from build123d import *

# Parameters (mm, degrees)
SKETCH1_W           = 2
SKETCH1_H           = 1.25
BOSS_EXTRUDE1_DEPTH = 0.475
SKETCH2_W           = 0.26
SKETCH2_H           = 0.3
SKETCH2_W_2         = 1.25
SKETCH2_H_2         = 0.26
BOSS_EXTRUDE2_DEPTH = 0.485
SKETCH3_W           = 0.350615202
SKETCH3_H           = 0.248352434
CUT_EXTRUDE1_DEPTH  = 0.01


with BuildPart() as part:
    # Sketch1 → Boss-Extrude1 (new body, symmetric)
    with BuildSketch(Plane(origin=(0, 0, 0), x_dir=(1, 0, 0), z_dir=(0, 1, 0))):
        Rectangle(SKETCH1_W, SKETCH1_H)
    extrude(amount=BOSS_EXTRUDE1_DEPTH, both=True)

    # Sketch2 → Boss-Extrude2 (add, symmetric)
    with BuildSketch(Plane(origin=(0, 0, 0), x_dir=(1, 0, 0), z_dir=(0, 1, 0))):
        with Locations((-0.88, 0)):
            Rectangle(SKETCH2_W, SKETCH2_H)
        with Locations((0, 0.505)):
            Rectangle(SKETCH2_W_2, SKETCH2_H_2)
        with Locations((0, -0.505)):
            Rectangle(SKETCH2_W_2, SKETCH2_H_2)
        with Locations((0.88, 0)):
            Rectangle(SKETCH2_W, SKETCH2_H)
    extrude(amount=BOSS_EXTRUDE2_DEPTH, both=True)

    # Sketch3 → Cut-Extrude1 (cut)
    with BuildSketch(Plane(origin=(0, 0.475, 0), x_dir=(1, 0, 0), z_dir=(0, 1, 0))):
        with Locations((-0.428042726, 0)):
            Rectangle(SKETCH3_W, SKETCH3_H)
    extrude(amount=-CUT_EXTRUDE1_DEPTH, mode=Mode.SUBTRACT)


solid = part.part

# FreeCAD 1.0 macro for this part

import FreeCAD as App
import Part
import Sketcher

V = App.Vector
Q = App.Units.Quantity


def add_polygon(sketch, points):
    """Adds a closed chain of lines whose ends are joined by coincident constraints."""
    first, n = sketch.GeometryCount, len(points)
    for a, b in zip(points, points[1:] + points[:1]):
        sketch.addGeometry(Part.LineSegment(App.Vector(*a, 0), App.Vector(*b, 0)), False)
    for i in range(n):
        sketch.addConstraint(Sketcher.Constraint("Coincident", first + i, 2, first + (i + 1) % n, 1))

doc = App.newDocument("Part")
body = doc.addObject("PartDesign::Body", "Body")

# Sketch on XZ plane
sketch1 = body.newObject("Sketcher::SketchObject", "Sketch")
sketch1.AttachmentSupport = (doc.getObject("XZ_Plane"), [""])
sketch1.MapMode = "FlatFace"
add_polygon(sketch1, [(-1, -0.6), (-1, 0.6), (1, 0.6), (1, -0.6)])  # lines 0-3
sketch1.addConstraint(Sketcher.Constraint("Vertical", 0))
sketch1.addConstraint(Sketcher.Constraint("Horizontal", 1))
sketch1.addConstraint(Sketcher.Constraint("Vertical", 2))
sketch1.addConstraint(Sketcher.Constraint("Horizontal", 3))
sketch1.addConstraint(Sketcher.Constraint("Symmetric", 0, 2, 2, 2, -1, 1))
sketch1.addConstraint(Sketcher.Constraint("DistanceX", 1, 1, 1, 2, Q("2 mm")))
sketch1.addConstraint(Sketcher.Constraint("DistanceY", 0, 1, 0, 2, Q("1.25 mm")))
pad1 = body.newObject("PartDesign::Pad", "Pad")
pad1.Profile = sketch1
pad1.Length = 0.95
pad1.Midplane = True

# Sketch on XZ plane
sketch2 = body.newObject("Sketcher::SketchObject", "Sketch001")
sketch2.AttachmentSupport = (doc.getObject("XZ_Plane"), [""])
sketch2.MapMode = "FlatFace"
add_polygon(sketch2, [(-1.01, -0.15), (-1.01, 0.15), (-0.75, 0.15), (-0.75, -0.15)])  # lines 0-3
add_polygon(sketch2, [(-0.62, -0.64), (-0.62, -0.38), (0.62, -0.38), (0.62, -0.64)])  # lines 4-7
add_polygon(sketch2, [(-0.62, 0.38), (-0.62, 0.64), (0.62, 0.64), (0.62, 0.38)])  # lines 8-11
add_polygon(sketch2, [(0.75, -0.15), (0.75, 0.15), (1.01, 0.15), (1.01, -0.15)])  # lines 12-15
sketch2.addConstraint(Sketcher.Constraint("Vertical", 0))
sketch2.addConstraint(Sketcher.Constraint("Horizontal", 1))
sketch2.addConstraint(Sketcher.Constraint("Vertical", 2))
sketch2.addConstraint(Sketcher.Constraint("Horizontal", 3))
sketch2.addConstraint(Sketcher.Constraint("Vertical", 4))
sketch2.addConstraint(Sketcher.Constraint("Horizontal", 5))
sketch2.addConstraint(Sketcher.Constraint("Vertical", 6))
sketch2.addConstraint(Sketcher.Constraint("Horizontal", 7))
sketch2.addConstraint(Sketcher.Constraint("Vertical", 8))
sketch2.addConstraint(Sketcher.Constraint("Horizontal", 9))
sketch2.addConstraint(Sketcher.Constraint("Vertical", 10))
sketch2.addConstraint(Sketcher.Constraint("Horizontal", 11))
sketch2.addConstraint(Sketcher.Constraint("Vertical", 12))
sketch2.addConstraint(Sketcher.Constraint("Horizontal", 13))
sketch2.addConstraint(Sketcher.Constraint("Vertical", 14))
sketch2.addConstraint(Sketcher.Constraint("Horizontal", 15))
sketch2.addConstraint(Sketcher.Constraint("Symmetric", 6, 2, 8, 2, -1, 1))
sketch2.addConstraint(Sketcher.Constraint("Symmetric", 4, 2, 10, 2, -1, 1))
sketch2.addConstraint(Sketcher.Constraint("Symmetric", 2, 2, 12, 2, -1, 1))
sketch2.addConstraint(Sketcher.Constraint("Symmetric", 0, 2, 14, 2, -1, 1))
sketch2.addConstraint(Sketcher.Constraint("Horizontal", 1, 2, 12, 2))
sketch2.addConstraint(Sketcher.Constraint("Vertical", 7, 2, 8, 2))
sketch2.addConstraint(Sketcher.Constraint("Equal", 15, 4))
sketch2.addConstraint(Sketcher.Constraint("DistanceY", 0, 1, 0, 2, Q("0.3 mm")))
sketch2.addConstraint(Sketcher.Constraint("DistanceX", 1, 1, 1, 2, Q("0.26 mm")))
sketch2.addConstraint(Sketcher.Constraint("DistanceX", 5, 1, 5, 2, Q("1.25 mm")))
sketch2.addConstraint(Sketcher.Constraint("DistanceX", 0, 2, -1, 1, Q("1.01 mm")))
sketch2.addConstraint(Sketcher.Constraint("DistanceY", 4, 2, 8, 2, Q("1.01 mm")))
pad2 = body.newObject("PartDesign::Pad", "Pad001")
pad2.Profile = sketch2
pad2.Length = 0.97
pad2.Midplane = True

# Sketch on XZ plane
sketch3 = body.newObject("Sketcher::SketchObject", "Sketch002")
sketch3.AttachmentSupport = (doc.getObject("XZ_Plane"), [""])
sketch3.MapMode = "FlatFace"
sketch3.AttachmentOffset = App.Placement(V(0, 0, -0.475), App.Rotation())
add_polygon(sketch3, [(-0.6, -0.12), (-0.6, 0.12), (-0.25, 0.12), (-0.25, -0.12)])  # lines 0-3
sketch3.addConstraint(Sketcher.Constraint("Vertical", 0))
sketch3.addConstraint(Sketcher.Constraint("Horizontal", 1))
sketch3.addConstraint(Sketcher.Constraint("Vertical", 2))
sketch3.addConstraint(Sketcher.Constraint("Horizontal", 3))
sketch3.addConstraint(Sketcher.Constraint("DistanceX", 1, 1, 1, 2, Q("0.350615 mm")))
sketch3.addConstraint(Sketcher.Constraint("DistanceY", 0, 1, 0, 2, Q("0.248352 mm")))
sketch3.addConstraint(Sketcher.Constraint("DistanceX", 0, 2, -1, 1, Q("0.60335 mm")))
sketch3.addConstraint(Sketcher.Constraint("DistanceY", -1, 1, 0, 2, Q("0.124176 mm")))
pocket1 = body.newObject("PartDesign::Pocket", "Pocket")
pocket1.Profile = sketch3
pocket1.Length = 0.01
pocket1.Reversed = True

doc.recompute()
